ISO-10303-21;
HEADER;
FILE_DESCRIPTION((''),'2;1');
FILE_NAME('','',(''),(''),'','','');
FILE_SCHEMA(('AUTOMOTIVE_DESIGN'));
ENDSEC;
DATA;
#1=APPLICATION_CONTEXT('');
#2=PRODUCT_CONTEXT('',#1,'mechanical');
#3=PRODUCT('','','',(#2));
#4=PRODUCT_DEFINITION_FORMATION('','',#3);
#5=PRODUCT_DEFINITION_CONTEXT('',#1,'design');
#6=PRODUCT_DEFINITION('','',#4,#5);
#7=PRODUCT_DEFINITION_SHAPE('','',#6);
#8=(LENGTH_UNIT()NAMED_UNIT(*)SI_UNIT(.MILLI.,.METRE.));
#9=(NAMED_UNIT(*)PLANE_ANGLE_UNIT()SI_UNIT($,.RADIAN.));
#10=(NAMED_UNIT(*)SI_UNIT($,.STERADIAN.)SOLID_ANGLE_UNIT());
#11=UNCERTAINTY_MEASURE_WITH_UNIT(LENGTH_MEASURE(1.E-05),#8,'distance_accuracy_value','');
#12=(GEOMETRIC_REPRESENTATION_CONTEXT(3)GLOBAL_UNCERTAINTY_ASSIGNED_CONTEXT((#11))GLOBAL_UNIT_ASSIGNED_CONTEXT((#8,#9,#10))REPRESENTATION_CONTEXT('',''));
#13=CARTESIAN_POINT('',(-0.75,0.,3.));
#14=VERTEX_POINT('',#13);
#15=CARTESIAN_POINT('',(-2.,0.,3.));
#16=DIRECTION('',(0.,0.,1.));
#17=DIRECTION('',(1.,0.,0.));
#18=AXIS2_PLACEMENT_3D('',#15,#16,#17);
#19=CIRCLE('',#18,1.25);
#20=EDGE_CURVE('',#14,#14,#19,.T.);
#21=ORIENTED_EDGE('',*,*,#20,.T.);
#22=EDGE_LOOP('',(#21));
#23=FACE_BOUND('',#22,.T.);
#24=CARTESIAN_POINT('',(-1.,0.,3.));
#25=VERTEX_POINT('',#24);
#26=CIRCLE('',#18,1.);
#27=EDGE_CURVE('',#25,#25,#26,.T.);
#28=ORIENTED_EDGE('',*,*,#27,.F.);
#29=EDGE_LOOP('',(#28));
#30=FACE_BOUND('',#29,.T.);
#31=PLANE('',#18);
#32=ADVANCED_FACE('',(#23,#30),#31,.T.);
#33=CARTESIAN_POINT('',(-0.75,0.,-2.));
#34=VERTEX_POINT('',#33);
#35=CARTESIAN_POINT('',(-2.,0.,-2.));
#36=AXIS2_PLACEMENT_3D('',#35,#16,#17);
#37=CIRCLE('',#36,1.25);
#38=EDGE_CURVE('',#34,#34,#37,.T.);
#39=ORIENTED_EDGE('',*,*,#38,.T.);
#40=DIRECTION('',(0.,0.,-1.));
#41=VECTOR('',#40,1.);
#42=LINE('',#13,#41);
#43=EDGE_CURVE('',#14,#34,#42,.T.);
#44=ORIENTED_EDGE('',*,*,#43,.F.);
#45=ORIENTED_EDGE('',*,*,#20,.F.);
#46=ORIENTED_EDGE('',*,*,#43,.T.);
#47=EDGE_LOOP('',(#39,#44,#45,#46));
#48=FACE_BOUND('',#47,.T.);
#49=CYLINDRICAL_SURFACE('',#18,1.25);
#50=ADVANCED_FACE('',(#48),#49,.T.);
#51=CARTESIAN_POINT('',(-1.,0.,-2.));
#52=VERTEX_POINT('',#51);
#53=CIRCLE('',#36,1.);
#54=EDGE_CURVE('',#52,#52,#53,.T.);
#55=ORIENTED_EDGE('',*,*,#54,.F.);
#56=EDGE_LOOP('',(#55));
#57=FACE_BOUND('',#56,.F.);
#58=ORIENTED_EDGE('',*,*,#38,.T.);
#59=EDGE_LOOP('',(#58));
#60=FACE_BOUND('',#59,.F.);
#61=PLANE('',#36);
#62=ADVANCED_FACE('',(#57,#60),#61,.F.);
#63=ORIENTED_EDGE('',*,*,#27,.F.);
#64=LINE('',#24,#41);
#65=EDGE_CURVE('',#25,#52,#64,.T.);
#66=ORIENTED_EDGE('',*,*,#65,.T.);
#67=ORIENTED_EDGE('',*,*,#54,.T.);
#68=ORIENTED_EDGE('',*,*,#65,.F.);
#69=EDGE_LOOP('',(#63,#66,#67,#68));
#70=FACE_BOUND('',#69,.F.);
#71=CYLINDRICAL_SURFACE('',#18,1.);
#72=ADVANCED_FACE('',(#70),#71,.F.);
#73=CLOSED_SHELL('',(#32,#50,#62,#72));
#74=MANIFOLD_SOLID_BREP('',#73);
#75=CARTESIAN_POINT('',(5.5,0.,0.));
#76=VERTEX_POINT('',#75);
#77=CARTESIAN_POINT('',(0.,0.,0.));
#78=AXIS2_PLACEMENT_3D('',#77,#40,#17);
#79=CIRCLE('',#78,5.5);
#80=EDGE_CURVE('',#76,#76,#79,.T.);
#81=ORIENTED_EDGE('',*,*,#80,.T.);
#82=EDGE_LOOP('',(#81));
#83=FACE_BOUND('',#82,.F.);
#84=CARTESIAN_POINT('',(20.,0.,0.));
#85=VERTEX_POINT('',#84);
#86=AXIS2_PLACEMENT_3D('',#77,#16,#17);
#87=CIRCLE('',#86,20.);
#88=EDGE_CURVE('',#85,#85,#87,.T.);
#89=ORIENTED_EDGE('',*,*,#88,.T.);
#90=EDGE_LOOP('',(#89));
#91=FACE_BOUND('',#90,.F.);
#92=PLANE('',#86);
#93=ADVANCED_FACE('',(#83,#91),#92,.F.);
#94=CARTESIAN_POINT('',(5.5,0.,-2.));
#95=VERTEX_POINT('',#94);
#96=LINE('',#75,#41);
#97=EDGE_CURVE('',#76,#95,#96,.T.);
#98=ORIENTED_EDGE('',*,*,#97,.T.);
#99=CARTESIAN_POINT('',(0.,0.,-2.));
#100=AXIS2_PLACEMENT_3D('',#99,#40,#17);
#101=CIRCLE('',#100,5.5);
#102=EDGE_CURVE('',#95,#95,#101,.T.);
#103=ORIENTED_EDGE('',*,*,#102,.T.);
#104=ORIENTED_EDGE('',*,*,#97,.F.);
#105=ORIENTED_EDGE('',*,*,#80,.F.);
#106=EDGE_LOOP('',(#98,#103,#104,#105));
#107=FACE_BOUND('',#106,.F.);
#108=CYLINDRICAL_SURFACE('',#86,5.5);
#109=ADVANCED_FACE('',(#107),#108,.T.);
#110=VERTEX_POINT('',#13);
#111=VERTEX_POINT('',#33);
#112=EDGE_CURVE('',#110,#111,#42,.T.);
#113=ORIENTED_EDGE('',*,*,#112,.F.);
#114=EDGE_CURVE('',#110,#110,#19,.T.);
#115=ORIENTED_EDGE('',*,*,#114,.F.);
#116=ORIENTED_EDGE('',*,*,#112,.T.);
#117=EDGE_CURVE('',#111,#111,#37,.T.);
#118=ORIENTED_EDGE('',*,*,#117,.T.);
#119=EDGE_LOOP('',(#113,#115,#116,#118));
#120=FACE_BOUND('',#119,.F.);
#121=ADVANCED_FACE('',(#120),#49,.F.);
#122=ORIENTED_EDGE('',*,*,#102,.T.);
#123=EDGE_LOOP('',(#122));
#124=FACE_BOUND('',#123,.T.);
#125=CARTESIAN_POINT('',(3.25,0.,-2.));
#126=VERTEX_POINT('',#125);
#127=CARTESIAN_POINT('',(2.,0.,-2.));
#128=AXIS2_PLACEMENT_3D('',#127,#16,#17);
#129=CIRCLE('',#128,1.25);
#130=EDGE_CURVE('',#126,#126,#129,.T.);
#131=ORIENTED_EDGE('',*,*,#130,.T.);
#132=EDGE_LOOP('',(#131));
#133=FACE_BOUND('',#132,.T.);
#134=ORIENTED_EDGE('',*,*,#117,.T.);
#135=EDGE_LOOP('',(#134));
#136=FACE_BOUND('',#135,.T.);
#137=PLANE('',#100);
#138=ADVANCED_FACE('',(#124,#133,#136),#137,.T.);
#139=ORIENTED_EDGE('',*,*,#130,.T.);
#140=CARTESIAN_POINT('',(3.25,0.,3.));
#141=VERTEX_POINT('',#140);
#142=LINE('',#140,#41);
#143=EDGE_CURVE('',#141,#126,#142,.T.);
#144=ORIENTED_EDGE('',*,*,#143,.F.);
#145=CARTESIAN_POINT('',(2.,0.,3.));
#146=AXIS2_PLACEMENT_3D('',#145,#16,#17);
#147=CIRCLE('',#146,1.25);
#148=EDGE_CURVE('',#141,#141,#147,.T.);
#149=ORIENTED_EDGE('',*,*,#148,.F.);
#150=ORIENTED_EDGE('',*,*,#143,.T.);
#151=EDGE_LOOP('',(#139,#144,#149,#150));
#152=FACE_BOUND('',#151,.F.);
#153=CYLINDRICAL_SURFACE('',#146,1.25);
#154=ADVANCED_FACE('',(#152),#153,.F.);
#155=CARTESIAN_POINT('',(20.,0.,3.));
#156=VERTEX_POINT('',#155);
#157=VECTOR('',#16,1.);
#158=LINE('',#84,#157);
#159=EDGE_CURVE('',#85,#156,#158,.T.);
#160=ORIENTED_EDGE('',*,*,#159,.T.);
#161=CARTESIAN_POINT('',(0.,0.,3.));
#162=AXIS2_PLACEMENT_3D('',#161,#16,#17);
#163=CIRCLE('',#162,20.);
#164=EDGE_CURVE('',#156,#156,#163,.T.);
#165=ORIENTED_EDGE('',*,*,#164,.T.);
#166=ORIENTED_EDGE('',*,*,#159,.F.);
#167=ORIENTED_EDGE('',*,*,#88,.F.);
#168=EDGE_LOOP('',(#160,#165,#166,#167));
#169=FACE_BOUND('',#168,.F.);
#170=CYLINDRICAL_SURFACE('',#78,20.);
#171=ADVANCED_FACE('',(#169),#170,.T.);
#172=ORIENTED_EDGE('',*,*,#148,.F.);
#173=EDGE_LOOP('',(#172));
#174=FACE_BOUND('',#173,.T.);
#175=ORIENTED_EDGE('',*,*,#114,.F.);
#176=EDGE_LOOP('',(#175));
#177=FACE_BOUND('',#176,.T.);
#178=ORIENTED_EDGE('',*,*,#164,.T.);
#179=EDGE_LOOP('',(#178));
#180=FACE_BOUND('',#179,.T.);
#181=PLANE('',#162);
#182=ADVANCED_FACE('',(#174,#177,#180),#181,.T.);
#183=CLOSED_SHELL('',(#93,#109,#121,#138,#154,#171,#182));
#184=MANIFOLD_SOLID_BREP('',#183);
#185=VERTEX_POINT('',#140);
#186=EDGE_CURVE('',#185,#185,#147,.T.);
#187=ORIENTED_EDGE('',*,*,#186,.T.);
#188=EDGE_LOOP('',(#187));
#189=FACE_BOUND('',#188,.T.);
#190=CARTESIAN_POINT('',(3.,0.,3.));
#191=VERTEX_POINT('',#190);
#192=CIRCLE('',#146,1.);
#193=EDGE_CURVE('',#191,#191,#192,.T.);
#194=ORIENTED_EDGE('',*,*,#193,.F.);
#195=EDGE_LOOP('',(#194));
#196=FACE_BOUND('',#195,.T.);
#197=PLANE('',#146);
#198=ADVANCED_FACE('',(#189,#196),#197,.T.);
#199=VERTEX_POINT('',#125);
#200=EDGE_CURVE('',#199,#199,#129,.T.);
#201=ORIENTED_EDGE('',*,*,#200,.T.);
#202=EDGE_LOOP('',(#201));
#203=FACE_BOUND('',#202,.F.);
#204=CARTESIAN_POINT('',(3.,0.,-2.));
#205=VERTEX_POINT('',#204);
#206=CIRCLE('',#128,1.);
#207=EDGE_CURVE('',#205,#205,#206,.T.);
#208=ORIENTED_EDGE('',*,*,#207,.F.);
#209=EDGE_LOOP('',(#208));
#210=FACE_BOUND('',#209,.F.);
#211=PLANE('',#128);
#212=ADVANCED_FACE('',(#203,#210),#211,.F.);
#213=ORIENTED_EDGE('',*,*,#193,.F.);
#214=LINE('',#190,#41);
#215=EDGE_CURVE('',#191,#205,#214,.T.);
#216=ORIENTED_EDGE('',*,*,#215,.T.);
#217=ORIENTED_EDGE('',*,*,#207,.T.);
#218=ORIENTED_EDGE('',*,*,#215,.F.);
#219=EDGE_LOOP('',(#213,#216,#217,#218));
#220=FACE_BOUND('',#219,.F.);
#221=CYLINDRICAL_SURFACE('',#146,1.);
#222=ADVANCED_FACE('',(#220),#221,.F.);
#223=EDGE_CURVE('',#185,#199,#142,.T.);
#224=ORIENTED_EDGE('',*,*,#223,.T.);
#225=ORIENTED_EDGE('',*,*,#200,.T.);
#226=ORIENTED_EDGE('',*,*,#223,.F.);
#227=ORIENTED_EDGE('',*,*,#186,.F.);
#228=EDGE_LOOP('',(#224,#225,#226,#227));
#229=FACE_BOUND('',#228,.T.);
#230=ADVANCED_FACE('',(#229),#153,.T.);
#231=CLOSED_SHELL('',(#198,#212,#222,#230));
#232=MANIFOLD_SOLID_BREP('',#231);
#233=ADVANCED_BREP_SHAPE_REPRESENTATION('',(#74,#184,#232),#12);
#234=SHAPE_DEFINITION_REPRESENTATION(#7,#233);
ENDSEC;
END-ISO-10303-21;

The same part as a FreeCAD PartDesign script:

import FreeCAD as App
import Part
import Sketcher

doc = App.newDocument("Part")
body = doc.addObject("PartDesign::Body", "Body")

# Sketch on XY plane
sketch1 = body.newObject("Sketcher::SketchObject", "Sketch")
sketch1.AttachmentSupport = (doc.getObject("XY_Plane"), [""])
sketch1.MapMode = "FlatFace"
sketch1.addGeometry(Part.Circle(App.Vector(0, 0, 0), App.Vector(0, 0, 1), 20), False)
sketch1.addConstraint([
    Sketcher.Constraint("Coincident", 0, 3, -1, 1),
    Sketcher.Constraint("Diameter", 0, 40.0),
])
pad1 = body.newObject("PartDesign::Pad", "Pad")
pad1.Profile = sketch1
pad1.Length = 3

# Sketch on XY plane
sketch2 = body.newObject("Sketcher::SketchObject", "Sketch001")
sketch2.AttachmentSupport = (doc.getObject("XY_Plane"), [""])
sketch2.MapMode = "FlatFace"
sketch2.addGeometry(Part.Circle(App.Vector(0, 0, 0), App.Vector(0, 0, 1), 6), False)
sketch2.addConstraint([
    Sketcher.Constraint("Coincident", 0, 3, -1, 1),
    Sketcher.Constraint("Diameter", 0, 11.0),
])
pad2 = body.newObject("PartDesign::Pad", "Pad001")
pad2.Profile = sketch2
pad2.Length = 2
pad2.Reversed = True

# Sketch on XY plane
sketch3 = body.newObject("Sketcher::SketchObject", "Sketch002")
sketch3.AttachmentSupport = (doc.getObject("XY_Plane"), [""])
sketch3.MapMode = "FlatFace"
sketch3.AttachmentOffset = App.Placement(App.Vector(0, 0, 3), App.Rotation())
sketch3.addGeometry([
    Part.Circle(App.Vector(-2, 0, 0), App.Vector(0, 0, 1), 1.2),
    Part.Circle(App.Vector(2, 0, 0), App.Vector(0, 0, 1), 1.2),
], False)
sketch3.addConstraint([
    Sketcher.Constraint("Equal", 0, 1),
    Sketcher.Constraint("Symmetric", 0, 3, 1, 3, -1, 1),
    Sketcher.Constraint("PointOnObject", 0, 3, -1),
    Sketcher.Constraint("Diameter", 0, 2.5),
    Sketcher.Constraint("DistanceX", 0, 3, -1, 1, 2.0),
])
pocket1 = body.newObject("PartDesign::Pocket", "Pocket")
pocket1.Profile = sketch3
pocket1.Length = 25
body2 = doc.addObject("PartDesign::Body", "Body001")
body2.AllowCompound = True

# Sketch on XY plane
sketch4 = body2.newObject("Sketcher::SketchObject", "Sketch003")
sketch4.AttachmentSupport = (doc.getObject("XY_Plane001"), [""])
sketch4.MapMode = "FlatFace"
sketch4.AttachmentOffset = App.Placement(App.Vector(0, 0, 3), App.Rotation())
sketch4.addGeometry([
    Part.Circle(App.Vector(-2, 0, 0), App.Vector(0, 0, 1), 1.2),
    Part.Circle(App.Vector(2, 0, 0), App.Vector(0, 0, 1), 1.2),
], False)
sketch4.addConstraint([
    Sketcher.Constraint("Equal", 0, 1),
    Sketcher.Constraint("Symmetric", 0, 3, 1, 3, -1, 1),
    Sketcher.Constraint("PointOnObject", 0, 3, -1),
    Sketcher.Constraint("Diameter", 0, 2.5),
    Sketcher.Constraint("DistanceX", 0, 3, -1, 1, 2.0),
])
pad3 = body2.newObject("PartDesign::Pad", "Pad002")
pad3.Profile = sketch4
pad3.Length = 5
pad3.Reversed = True

# Sketch on XY plane
sketch5 = body2.newObject("Sketcher::SketchObject", "Sketch004")
sketch5.AttachmentSupport = (doc.getObject("XY_Plane001"), [""])
sketch5.MapMode = "FlatFace"
sketch5.AttachmentOffset = App.Placement(App.Vector(0, 0, 3), App.Rotation())
sketch5.addGeometry([
    Part.Circle(App.Vector(-2, 0, 0), App.Vector(0, 0, 1), 1),
    Part.Circle(App.Vector(2, 0, 0), App.Vector(0, 0, 1), 1),
], False)
sketch5.addConstraint([
    Sketcher.Constraint("Equal", 0, 1),
    Sketcher.Constraint("Symmetric", 0, 3, 1, 3, -1, 1),
    Sketcher.Constraint("PointOnObject", 0, 3, -1),
    Sketcher.Constraint("Diameter", 0, 2.0),
    Sketcher.Constraint("DistanceX", 0, 3, -1, 1, 2.0),
])
pocket2 = body2.newObject("PartDesign::Pocket", "Pocket001")
pocket2.Profile = sketch5
pocket2.Length = 25

doc.recompute()
